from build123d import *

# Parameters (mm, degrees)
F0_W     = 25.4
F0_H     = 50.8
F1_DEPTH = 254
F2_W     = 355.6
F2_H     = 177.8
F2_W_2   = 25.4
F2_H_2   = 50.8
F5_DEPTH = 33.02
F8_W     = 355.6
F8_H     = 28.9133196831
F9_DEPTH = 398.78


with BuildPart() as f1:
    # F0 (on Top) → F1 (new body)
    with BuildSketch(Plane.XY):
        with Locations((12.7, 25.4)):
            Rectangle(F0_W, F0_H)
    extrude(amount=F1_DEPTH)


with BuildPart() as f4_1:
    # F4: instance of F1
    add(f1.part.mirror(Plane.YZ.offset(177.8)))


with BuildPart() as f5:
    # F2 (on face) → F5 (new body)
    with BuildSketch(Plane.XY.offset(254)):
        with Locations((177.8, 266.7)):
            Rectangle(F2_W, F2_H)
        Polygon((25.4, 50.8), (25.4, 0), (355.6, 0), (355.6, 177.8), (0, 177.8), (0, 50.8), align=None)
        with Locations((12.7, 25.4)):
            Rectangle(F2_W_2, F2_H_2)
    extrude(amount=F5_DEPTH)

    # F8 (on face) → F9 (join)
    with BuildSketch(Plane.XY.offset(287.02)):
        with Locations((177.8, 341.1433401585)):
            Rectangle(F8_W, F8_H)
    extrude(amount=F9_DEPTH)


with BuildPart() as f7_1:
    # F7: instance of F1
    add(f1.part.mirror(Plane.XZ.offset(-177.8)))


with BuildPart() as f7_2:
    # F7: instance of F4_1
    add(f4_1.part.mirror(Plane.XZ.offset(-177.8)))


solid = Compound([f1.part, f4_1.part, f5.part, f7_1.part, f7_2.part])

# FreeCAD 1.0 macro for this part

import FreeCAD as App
import Part
import Sketcher
from FreeCAD import Vector
Q = App.Units.Quantity

doc = App.newDocument("Part")
body = doc.addObject("PartDesign::Body", "Body")

# Sketch on XY plane
sketch1 = body.newObject("Sketcher::SketchObject", "Sketch")
sketch1.AttachmentSupport = (doc.getObject("XY_Plane"), [""])
sketch1.MapMode = "FlatFace"
sketch1.addGeometry([
    Part.LineSegment(Vector(0, 51, 0), Vector(0, 0, 0)),
    Part.LineSegment(Vector(0, 0, 0), Vector(25, 0, 0)),
    Part.LineSegment(Vector(25, 0, 0), Vector(25, 51, 0)),
    Part.LineSegment(Vector(25, 51, 0), Vector(0, 51, 0)),
], False)
sketch1.addConstraint([
    Sketcher.Constraint("Coincident", 0, 2, 1, 1),
    Sketcher.Constraint("Coincident", 1, 2, 2, 1),
    Sketcher.Constraint("Coincident", 2, 2, 3, 1),
    Sketcher.Constraint("Coincident", 3, 2, 0, 1),
    Sketcher.Constraint("Vertical", 0),
    Sketcher.Constraint("Horizontal", 1),
    Sketcher.Constraint("Vertical", 2),
    Sketcher.Constraint("Horizontal", 3),
    Sketcher.Constraint("Coincident", 0, 2, -1, 1),
    Sketcher.Constraint("DistanceX", 1, 1, 1, 2, Q("1 in")),
    Sketcher.Constraint("DistanceY", 0, 2, 0, 1, Q("2 in")),
])
pad1 = body.newObject("PartDesign::Pad", "Pad")
pad1.Profile = sketch1
pad1.Length = Q("10 in")
body2 = doc.addObject("PartDesign::Body", "Body001")
doc.recompute()

mirroring = doc.addObject("Part::Mirroring", "Mirroring")
mirroring.Source = body
mirroring.Base = Vector(177.8, 0, 0)
mirroring.Normal = Vector(1, 0, 0)
body2.BaseFeature = mirroring
doc.recompute()
body3 = doc.addObject("PartDesign::Body", "Body002")

# Sketch on XY plane
sketch2 = body3.newObject("Sketcher::SketchObject", "Sketch001")
sketch2.AttachmentSupport = (doc.getObject("XY_Plane002"), [""])
sketch2.MapMode = "FlatFace"
sketch2.AttachmentOffset = App.Placement(Vector(0, 0, 10 * 25.4), App.Rotation())
sketch2.addGeometry([
    Part.LineSegment(Vector(0, 356, 0), Vector(0, 0, 0)),
    Part.LineSegment(Vector(0, 0, 0), Vector(356, 0, 0)),
    Part.LineSegment(Vector(356, 0, 0), Vector(356, 356, 0)),
    Part.LineSegment(Vector(356, 356, 0), Vector(0, 356, 0)),
], False)
sketch2.addConstraint([
    Sketcher.Constraint("Coincident", 0, 2, 1, 1),
    Sketcher.Constraint("Coincident", 1, 2, 2, 1),
    Sketcher.Constraint("Coincident", 2, 2, 3, 1),
    Sketcher.Constraint("Coincident", 3, 2, 0, 1),
    Sketcher.Constraint("Vertical", 0),
    Sketcher.Constraint("Horizontal", 1),
    Sketcher.Constraint("Vertical", 2),
    Sketcher.Constraint("Horizontal", 3),
    Sketcher.Constraint("Coincident", 0, 2, -1, 1),
    Sketcher.Constraint("Equal", 3, 0),
    Sketcher.Constraint("DistanceX", 1, 1, 1, 2, Q("14 in")),
])
pad2 = body3.newObject("PartDesign::Pad", "Pad001")
pad2.Profile = sketch2
pad2.Length = Q("1.3 in")

# Sketch on XY plane
sketch3 = body3.newObject("Sketcher::SketchObject", "Sketch002")
sketch3.AttachmentSupport = (doc.getObject("XY_Plane002"), [""])
sketch3.MapMode = "FlatFace"
sketch3.AttachmentOffset = App.Placement(Vector(0, 0, 11.3 * 25.4), App.Rotation())
sketch3.addGeometry([
    Part.LineSegment(Vector(0, 356, 0), Vector(0, 327, 0)),
    Part.LineSegment(Vector(0, 327, 0), Vector(356, 327, 0)),
    Part.LineSegment(Vector(356, 327, 0), Vector(356, 356, 0)),
    Part.LineSegment(Vector(356, 356, 0), Vector(0, 356, 0)),
], False)
sketch3.addConstraint([
    Sketcher.Constraint("Coincident", 0, 2, 1, 1),
    Sketcher.Constraint("Coincident", 1, 2, 2, 1),
    Sketcher.Constraint("Coincident", 2, 2, 3, 1),
    Sketcher.Constraint("Coincident", 3, 2, 0, 1),
    Sketcher.Constraint("Vertical", 0),
    Sketcher.Constraint("Horizontal", 1),
    Sketcher.Constraint("Vertical", 2),
    Sketcher.Constraint("Horizontal", 3),
    Sketcher.Constraint("PointOnObject", 0, 2, -2),
    Sketcher.Constraint("DistanceX", 1, 1, 1, 2, Q("14 in")),
    Sketcher.Constraint("DistanceY", -1, 1, 2, 2, Q("14 in")),
    Sketcher.Constraint("DistanceY", 0, 2, 0, 1, Q("28.91332 mm")),
])
pad3 = body3.newObject("PartDesign::Pad", "Pad002")
pad3.Profile = sketch3
pad3.Length = Q("15.7 in")
body4 = doc.addObject("PartDesign::Body", "Body003")
doc.recompute()

mirroring2 = doc.addObject("Part::Mirroring", "Mirroring001")
mirroring2.Source = body
mirroring2.Base = Vector(0, 177.8, 0)
mirroring2.Normal = Vector(0, -1, 0)
body4.BaseFeature = mirroring2
doc.recompute()
body5 = doc.addObject("PartDesign::Body", "Body004")
doc.recompute()

mirroring3 = doc.addObject("Part::Mirroring", "Mirroring002")
mirroring3.Source = body2
mirroring3.Base = Vector(0, 177.8, 0)
mirroring3.Normal = Vector(0, -1, 0)
body5.BaseFeature = mirroring3
doc.recompute()
mirroring.Visibility = False
mirroring2.Visibility = False
mirroring3.Visibility = False

doc.recompute()
